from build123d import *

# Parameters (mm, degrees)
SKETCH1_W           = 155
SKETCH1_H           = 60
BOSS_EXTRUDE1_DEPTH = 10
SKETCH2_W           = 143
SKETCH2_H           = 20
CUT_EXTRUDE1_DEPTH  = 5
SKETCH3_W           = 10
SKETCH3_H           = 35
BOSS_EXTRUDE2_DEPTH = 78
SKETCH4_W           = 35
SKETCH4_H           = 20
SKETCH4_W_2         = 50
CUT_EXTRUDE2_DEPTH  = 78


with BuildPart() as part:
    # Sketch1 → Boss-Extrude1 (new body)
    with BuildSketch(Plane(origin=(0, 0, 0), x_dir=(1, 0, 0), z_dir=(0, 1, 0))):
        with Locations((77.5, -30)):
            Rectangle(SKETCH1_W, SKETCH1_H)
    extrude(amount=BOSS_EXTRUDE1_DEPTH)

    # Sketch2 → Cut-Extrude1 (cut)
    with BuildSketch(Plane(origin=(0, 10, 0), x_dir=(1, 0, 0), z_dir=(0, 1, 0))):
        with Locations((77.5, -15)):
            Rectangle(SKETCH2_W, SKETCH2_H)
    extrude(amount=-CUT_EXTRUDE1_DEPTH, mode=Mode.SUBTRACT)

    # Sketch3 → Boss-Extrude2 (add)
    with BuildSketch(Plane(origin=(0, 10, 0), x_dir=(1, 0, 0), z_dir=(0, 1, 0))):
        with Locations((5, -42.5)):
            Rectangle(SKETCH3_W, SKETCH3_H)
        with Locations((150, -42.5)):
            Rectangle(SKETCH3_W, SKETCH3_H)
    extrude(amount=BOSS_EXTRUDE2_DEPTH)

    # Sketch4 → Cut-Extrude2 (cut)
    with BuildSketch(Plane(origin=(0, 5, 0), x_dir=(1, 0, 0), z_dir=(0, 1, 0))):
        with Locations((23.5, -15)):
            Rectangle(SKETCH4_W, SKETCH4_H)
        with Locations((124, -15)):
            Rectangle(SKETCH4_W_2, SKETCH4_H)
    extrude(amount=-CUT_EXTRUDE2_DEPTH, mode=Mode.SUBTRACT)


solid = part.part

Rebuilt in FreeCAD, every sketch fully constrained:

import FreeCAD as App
import Part
import Sketcher
from FreeCAD import Vector
Q = App.Units.Quantity


def add_polygon(sketch, points):
    """Adds a closed chain of lines whose ends are joined by coincident constraints."""
    first, n = sketch.GeometryCount, len(points)
    for a, b in zip(points, points[1:] + points[:1]):
        sketch.addGeometry(Part.LineSegment(App.Vector(*a, 0), App.Vector(*b, 0)), False)
    for i in range(n):
        sketch.addConstraint(Sketcher.Constraint("Coincident", first + i, 2, first + (i + 1) % n, 1))

doc = App.newDocument("Part")
body = doc.addObject("PartDesign::Body", "Body")

# Sketch on XZ plane
sketch1 = body.newObject("Sketcher::SketchObject", "Sketch")
sketch1.AttachmentSupport = (doc.getObject("XZ_Plane"), [""])
sketch1.MapMode = "FlatFace"
add_polygon(sketch1, [(0, 0), (0, 60), (155, 60), (155, 0)])  # lines 0-3
sketch1.addConstraint(Sketcher.Constraint("Vertical", 0))
sketch1.addConstraint(Sketcher.Constraint("Horizontal", 1))
sketch1.addConstraint(Sketcher.Constraint("Vertical", 2))
sketch1.addConstraint(Sketcher.Constraint("Horizontal", 3))
sketch1.addConstraint(Sketcher.Constraint("Coincident", 3, 2, -1, 1))
sketch1.addConstraint(Sketcher.Constraint("DistanceX", 1, 1, 1, 2, Q("155 mm")))
sketch1.addConstraint(Sketcher.Constraint("DistanceY", 0, 1, 0, 2, Q("60 mm")))
pad1 = body.newObject("PartDesign::Pad", "Pad")
pad1.Profile = sketch1
pad1.Length = 10
pad1.Reversed = True

# Sketch on XZ plane
sketch2 = body.newObject("Sketcher::SketchObject", "Sketch001")
sketch2.AttachmentSupport = (doc.getObject("XZ_Plane"), [""])
sketch2.MapMode = "FlatFace"
sketch2.AttachmentOffset = App.Placement(Vector(0, 0, -10), App.Rotation())
add_polygon(sketch2, [(6, 5), (6, 25), (149, 25), (149, 5)])  # lines 0-3
sketch2.addConstraint(Sketcher.Constraint("Vertical", 0))
sketch2.addConstraint(Sketcher.Constraint("Horizontal", 1))
sketch2.addConstraint(Sketcher.Constraint("Vertical", 2))
sketch2.addConstraint(Sketcher.Constraint("Horizontal", 3))
sketch2.addConstraint(Sketcher.Constraint("DistanceX", 1, 1, 1, 2, Q("143 mm")))
sketch2.addConstraint(Sketcher.Constraint("DistanceY", 0, 1, 0, 2, Q("20 mm")))
sketch2.addConstraint(Sketcher.Constraint("DistanceX", -1, 1, 0, 2, Q("6 mm")))
sketch2.addConstraint(Sketcher.Constraint("DistanceY", -1, 1, 0, 2, Q("25 mm")))
pocket1 = body.newObject("PartDesign::Pocket", "Pocket")
pocket1.Profile = sketch2
pocket1.Length = 5
pocket1.Reversed = True

# Sketch on XZ plane
sketch3 = body.newObject("Sketcher::SketchObject", "Sketch002")
sketch3.AttachmentSupport = (doc.getObject("XZ_Plane"), [""])
sketch3.MapMode = "FlatFace"
sketch3.AttachmentOffset = App.Placement(Vector(0, 0, -10), App.Rotation())
add_polygon(sketch3, [(0, 25), (0, 60), (10, 60), (10, 25)])  # lines 0-3
add_polygon(sketch3, [(145, 25), (145, 60), (155, 60), (155, 25)])  # lines 4-7
sketch3.addConstraint(Sketcher.Constraint("Vertical", 0))
sketch3.addConstraint(Sketcher.Constraint("Horizontal", 1))
sketch3.addConstraint(Sketcher.Constraint("Vertical", 2))
sketch3.addConstraint(Sketcher.Constraint("Horizontal", 3))
sketch3.addConstraint(Sketcher.Constraint("Vertical", 4))
sketch3.addConstraint(Sketcher.Constraint("Horizontal", 5))
sketch3.addConstraint(Sketcher.Constraint("Vertical", 6))
sketch3.addConstraint(Sketcher.Constraint("Horizontal", 7))
sketch3.addConstraint(Sketcher.Constraint("PointOnObject", 0, 2, -2))
sketch3.addConstraint(Sketcher.Constraint("Horizontal", 1, 2, 4, 2))
sketch3.addConstraint(Sketcher.Constraint("Horizontal", 3, 2, 6, 2))
sketch3.addConstraint(Sketcher.Constraint("Equal", 3, 5))
sketch3.addConstraint(Sketcher.Constraint("DistanceX", 1, 1, 1, 2, Q("10 mm")))
sketch3.addConstraint(Sketcher.Constraint("DistanceY", 0, 1, 0, 2, Q("35 mm")))
sketch3.addConstraint(Sketcher.Constraint("DistanceY", -1, 1, 0, 2, Q("60 mm")))
sketch3.addConstraint(Sketcher.Constraint("DistanceX", -1, 1, 4, 2, Q("145 mm")))
pad2 = body.newObject("PartDesign::Pad", "Pad001")
pad2.Profile = sketch3
pad2.Length = 78
pad2.Reversed = True

# Sketch on XZ plane
sketch4 = body.newObject("Sketcher::SketchObject", "Sketch003")
sketch4.AttachmentSupport = (doc.getObject("XZ_Plane"), [""])
sketch4.MapMode = "FlatFace"
sketch4.AttachmentOffset = App.Placement(Vector(0, 0, -5), App.Rotation())
add_polygon(sketch4, [(6, 5), (6, 25), (41, 25), (41, 5)])  # lines 0-3
add_polygon(sketch4, [(99, 5), (99, 25), (149, 25), (149, 5)])  # lines 4-7
sketch4.addConstraint(Sketcher.Constraint("Vertical", 0))
sketch4.addConstraint(Sketcher.Constraint("Horizontal", 1))
sketch4.addConstraint(Sketcher.Constraint("Vertical", 2))
sketch4.addConstraint(Sketcher.Constraint("Horizontal", 3))
sketch4.addConstraint(Sketcher.Constraint("Vertical", 4))
sketch4.addConstraint(Sketcher.Constraint("Horizontal", 5))
sketch4.addConstraint(Sketcher.Constraint("Vertical", 6))
sketch4.addConstraint(Sketcher.Constraint("Horizontal", 7))
sketch4.addConstraint(Sketcher.Constraint("Horizontal", 1, 2, 4, 2))
sketch4.addConstraint(Sketcher.Constraint("Horizontal", 3, 2, 6, 2))
sketch4.addConstraint(Sketcher.Constraint("DistanceX", 1, 1, 1, 2, Q("35 mm")))
sketch4.addConstraint(Sketcher.Constraint("DistanceX", 5, 1, 5, 2, Q("50 mm")))
sketch4.addConstraint(Sketcher.Constraint("DistanceY", 0, 1, 0, 2, Q("20 mm")))
sketch4.addConstraint(Sketcher.Constraint("DistanceX", -1, 1, 0, 2, Q("6 mm")))
sketch4.addConstraint(Sketcher.Constraint("DistanceY", -1, 1, 0, 2, Q("25 mm")))
sketch4.addConstraint(Sketcher.Constraint("DistanceX", -1, 1, 4, 2, Q("99 mm")))
pocket2 = body.newObject("PartDesign::Pocket", "Pocket001")
pocket2.Profile = sketch4
pocket2.Length = 78
pocket2.Reversed = True

doc.recompute()
